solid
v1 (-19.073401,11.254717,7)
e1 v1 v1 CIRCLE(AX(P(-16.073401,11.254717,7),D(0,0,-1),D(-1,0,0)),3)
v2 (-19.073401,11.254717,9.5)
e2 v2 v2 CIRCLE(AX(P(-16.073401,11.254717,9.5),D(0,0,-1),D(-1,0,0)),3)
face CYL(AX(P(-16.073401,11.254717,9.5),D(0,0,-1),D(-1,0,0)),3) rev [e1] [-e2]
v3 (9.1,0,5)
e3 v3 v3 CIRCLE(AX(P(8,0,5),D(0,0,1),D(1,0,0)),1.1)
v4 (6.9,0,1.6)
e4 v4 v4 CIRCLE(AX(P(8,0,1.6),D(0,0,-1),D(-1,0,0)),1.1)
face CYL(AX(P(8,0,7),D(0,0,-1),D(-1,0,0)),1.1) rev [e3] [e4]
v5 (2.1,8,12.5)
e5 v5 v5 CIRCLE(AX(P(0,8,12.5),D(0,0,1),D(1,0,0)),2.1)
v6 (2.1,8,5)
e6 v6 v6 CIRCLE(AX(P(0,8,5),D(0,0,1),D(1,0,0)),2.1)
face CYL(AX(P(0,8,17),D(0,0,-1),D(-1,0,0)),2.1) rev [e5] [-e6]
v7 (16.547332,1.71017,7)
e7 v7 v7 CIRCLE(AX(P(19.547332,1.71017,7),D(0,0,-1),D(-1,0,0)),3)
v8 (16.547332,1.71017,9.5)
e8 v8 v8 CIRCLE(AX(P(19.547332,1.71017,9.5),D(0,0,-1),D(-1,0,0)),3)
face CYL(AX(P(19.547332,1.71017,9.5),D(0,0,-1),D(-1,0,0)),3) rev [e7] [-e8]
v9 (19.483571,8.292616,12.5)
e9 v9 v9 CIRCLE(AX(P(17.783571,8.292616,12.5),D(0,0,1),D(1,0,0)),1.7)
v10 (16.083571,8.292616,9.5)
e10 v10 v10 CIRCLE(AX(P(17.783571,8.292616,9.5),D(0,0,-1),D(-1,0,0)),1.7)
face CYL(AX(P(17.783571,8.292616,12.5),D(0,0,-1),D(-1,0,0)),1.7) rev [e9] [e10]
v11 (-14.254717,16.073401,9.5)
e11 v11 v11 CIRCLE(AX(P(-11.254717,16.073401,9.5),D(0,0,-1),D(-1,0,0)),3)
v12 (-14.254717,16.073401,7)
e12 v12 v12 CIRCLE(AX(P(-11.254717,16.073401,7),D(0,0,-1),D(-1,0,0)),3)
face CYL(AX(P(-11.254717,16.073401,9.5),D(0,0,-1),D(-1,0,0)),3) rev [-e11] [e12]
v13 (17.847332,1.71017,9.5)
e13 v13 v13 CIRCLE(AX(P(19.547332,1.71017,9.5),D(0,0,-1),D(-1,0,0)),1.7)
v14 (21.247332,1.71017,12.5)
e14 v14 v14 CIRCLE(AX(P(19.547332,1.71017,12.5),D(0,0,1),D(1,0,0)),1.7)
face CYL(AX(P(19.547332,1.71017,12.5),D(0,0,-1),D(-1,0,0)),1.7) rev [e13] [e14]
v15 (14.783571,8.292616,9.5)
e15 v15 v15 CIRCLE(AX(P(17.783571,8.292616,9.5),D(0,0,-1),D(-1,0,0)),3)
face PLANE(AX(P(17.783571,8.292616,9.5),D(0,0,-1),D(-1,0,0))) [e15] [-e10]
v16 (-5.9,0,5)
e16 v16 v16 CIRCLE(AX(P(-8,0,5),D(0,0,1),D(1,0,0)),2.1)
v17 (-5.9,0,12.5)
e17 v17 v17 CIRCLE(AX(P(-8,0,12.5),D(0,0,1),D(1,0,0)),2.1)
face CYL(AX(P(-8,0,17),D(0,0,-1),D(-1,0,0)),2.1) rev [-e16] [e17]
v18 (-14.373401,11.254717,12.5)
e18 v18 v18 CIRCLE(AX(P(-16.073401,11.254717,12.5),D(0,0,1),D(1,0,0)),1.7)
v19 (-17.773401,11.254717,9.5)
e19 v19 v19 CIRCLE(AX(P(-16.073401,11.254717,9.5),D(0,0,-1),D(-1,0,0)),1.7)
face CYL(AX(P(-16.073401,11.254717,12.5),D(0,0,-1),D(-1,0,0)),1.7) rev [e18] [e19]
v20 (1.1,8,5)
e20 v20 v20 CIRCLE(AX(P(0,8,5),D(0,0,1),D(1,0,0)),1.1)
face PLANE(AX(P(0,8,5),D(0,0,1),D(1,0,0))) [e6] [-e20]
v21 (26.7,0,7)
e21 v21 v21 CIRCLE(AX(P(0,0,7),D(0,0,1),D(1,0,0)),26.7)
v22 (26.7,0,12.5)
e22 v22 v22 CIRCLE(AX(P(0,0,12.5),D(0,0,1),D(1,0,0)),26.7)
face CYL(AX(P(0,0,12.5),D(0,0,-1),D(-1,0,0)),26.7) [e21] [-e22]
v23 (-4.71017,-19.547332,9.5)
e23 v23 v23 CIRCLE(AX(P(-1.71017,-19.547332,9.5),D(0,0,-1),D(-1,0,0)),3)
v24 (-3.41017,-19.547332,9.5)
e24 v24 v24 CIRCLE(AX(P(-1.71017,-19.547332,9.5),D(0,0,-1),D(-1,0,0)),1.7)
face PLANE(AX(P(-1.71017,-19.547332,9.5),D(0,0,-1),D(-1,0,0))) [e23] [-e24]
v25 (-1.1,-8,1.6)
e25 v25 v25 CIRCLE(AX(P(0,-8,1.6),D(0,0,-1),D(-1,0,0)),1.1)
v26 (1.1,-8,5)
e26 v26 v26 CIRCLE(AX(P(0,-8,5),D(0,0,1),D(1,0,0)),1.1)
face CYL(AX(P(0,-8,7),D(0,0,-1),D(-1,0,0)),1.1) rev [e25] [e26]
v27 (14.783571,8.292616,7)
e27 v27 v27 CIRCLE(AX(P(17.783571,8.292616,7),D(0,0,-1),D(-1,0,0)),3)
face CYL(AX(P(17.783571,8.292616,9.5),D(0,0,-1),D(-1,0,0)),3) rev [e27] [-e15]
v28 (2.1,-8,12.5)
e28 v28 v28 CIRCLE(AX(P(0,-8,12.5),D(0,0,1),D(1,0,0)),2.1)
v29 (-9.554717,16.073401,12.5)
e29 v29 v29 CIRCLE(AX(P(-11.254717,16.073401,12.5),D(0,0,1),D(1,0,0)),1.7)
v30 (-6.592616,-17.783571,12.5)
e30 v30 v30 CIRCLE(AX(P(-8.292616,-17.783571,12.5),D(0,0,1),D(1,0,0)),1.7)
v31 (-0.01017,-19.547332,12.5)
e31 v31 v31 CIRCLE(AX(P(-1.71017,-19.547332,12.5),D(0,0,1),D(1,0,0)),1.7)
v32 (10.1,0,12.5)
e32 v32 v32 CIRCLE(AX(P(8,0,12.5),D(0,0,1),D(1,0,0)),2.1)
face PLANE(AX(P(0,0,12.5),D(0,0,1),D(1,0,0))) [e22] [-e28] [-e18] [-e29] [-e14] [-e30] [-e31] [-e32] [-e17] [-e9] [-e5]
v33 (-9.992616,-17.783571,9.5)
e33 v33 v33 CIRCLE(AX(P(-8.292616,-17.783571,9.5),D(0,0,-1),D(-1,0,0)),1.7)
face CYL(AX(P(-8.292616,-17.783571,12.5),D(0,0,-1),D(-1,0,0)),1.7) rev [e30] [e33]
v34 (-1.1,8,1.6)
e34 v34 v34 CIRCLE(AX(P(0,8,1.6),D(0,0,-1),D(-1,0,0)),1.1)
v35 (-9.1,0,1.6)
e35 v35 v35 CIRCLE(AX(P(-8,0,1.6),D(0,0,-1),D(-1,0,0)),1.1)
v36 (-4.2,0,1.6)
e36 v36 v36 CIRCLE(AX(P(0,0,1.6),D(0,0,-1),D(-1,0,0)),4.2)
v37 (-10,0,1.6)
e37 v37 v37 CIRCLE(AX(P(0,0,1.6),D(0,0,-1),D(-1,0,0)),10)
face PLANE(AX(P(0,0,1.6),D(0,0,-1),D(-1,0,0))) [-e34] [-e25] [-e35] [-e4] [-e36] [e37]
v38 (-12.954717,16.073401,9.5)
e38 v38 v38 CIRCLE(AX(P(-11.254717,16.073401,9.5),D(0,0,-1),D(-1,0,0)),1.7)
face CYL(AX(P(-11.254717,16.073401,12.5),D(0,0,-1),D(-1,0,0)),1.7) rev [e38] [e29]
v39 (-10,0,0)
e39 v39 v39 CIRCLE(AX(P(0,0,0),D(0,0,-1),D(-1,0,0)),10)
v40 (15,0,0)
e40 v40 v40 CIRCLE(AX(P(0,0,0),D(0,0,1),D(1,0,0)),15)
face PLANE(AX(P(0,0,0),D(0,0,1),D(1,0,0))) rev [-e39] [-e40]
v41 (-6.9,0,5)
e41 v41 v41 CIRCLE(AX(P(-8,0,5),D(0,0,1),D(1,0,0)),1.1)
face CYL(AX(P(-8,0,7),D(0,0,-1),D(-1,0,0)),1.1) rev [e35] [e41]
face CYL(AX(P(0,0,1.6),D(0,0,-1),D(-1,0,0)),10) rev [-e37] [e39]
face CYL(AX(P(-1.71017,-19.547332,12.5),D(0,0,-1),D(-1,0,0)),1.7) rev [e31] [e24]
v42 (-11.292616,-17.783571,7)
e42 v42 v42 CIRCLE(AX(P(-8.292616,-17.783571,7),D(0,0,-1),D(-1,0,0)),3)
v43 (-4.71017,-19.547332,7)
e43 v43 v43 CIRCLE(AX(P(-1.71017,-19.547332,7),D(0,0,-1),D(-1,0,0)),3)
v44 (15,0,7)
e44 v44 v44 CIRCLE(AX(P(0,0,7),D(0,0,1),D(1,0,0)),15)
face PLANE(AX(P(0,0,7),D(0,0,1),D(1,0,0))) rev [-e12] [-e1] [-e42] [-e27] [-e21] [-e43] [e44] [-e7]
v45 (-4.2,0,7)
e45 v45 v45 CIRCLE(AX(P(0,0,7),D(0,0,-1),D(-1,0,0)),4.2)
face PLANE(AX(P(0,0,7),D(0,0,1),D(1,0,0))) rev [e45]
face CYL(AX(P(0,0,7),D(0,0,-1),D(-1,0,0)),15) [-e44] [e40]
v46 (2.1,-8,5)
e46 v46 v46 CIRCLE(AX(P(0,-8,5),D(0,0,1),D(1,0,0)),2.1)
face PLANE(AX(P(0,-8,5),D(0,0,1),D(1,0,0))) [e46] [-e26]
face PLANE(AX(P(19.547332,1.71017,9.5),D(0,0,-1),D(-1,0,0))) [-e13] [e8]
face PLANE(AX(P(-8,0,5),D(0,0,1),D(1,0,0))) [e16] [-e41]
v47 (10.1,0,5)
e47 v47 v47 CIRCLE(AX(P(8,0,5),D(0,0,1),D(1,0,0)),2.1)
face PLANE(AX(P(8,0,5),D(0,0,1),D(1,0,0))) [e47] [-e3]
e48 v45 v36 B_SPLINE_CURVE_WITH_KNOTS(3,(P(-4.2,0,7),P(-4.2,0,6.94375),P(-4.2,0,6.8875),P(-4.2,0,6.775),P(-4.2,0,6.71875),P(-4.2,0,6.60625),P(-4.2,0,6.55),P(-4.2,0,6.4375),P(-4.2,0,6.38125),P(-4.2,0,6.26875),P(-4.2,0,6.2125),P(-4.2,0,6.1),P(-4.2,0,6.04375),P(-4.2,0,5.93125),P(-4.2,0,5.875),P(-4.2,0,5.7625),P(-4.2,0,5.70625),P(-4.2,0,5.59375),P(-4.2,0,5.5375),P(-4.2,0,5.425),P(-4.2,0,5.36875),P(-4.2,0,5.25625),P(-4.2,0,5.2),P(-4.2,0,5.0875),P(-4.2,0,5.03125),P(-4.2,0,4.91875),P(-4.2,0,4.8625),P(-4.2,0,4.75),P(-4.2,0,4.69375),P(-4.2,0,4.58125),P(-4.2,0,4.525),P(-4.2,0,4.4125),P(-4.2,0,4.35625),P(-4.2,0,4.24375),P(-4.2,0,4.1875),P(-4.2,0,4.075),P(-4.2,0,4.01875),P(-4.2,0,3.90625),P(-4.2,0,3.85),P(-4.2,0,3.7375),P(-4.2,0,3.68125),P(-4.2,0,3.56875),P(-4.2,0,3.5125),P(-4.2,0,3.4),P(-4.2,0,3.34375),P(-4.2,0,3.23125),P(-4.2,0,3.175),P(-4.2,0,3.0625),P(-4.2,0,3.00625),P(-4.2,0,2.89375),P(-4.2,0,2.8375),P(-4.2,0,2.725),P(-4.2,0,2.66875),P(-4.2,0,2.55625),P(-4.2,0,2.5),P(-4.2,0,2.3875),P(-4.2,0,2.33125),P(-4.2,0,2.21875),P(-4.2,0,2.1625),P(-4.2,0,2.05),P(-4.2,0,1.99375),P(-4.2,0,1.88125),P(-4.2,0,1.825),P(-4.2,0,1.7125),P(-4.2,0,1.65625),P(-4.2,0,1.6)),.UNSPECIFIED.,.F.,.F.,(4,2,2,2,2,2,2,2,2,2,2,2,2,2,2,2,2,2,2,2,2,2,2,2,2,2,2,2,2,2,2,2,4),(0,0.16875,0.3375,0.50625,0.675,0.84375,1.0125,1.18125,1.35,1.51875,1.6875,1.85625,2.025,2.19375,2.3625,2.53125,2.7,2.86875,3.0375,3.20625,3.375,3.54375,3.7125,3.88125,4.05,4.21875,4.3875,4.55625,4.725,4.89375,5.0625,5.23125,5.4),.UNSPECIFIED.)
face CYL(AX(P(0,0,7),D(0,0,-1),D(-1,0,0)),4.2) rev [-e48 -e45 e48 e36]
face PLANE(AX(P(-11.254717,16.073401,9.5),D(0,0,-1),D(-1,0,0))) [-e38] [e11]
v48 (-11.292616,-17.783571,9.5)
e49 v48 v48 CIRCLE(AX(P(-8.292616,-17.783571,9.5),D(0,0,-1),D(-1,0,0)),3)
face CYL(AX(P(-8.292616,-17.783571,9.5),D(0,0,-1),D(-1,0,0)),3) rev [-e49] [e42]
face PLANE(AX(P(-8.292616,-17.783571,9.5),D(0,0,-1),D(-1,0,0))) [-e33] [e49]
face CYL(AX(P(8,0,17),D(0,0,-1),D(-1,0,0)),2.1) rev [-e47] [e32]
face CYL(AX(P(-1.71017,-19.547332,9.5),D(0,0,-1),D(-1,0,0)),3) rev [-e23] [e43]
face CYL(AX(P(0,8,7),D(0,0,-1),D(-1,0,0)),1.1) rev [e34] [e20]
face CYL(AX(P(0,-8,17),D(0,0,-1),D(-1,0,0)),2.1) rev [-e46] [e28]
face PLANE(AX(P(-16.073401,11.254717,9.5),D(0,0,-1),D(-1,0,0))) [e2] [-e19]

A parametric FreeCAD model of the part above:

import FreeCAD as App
import Part
import Sketcher
from FreeCAD import Vector

doc = App.newDocument("Part")
body = doc.addObject("PartDesign::Body", "Body")

# Sketch on XY plane
sketch1 = body.newObject("Sketcher::SketchObject", "Sketch")
sketch1.AttachmentSupport = (doc.getObject("XY_Plane"), [""])
sketch1.MapMode = "FlatFace"
sketch1.addGeometry(Part.Circle(Vector(0, 0, 0), Vector(0, 0, 1), 15), False)
sketch1.addGeometry(Part.Circle(Vector(-8, 0, 0), Vector(0, 0, 1), 1.1), False)
sketch1.addGeometry(Part.Circle(Vector(0, -8, 0), Vector(0, 0, 1), 1.1), False)
sketch1.addGeometry(Part.Circle(Vector(0, 0, 0), Vector(0, 0, 1), 2.3), False)
sketch1.addGeometry(Part.Circle(Vector(8, 0, 0), Vector(0, 0, 1), 1.1), False)
sketch1.addGeometry(Part.Circle(Vector(0, 8, 0), Vector(0, 0, 1), 1.1), False)
sketch1.addConstraint(Sketcher.Constraint("Coincident", 0, 3, -1, 1))
sketch1.addConstraint(Sketcher.Constraint("Coincident", 3, 3, -1, 1))
sketch1.addConstraint(Sketcher.Constraint("Equal", 1, 2))
sketch1.addConstraint(Sketcher.Constraint("Equal", 2, 4))
sketch1.addConstraint(Sketcher.Constraint("Equal", 4, 5))
sketch1.addConstraint(Sketcher.Constraint("Symmetric", 1, 3, 4, 3, -1, 1))
sketch1.addConstraint(Sketcher.Constraint("Symmetric", 2, 3, 5, 3, -1, 1))
sketch1.addConstraint(Sketcher.Constraint("PointOnObject", 1, 3, -1))
sketch1.addConstraint(Sketcher.Constraint("PointOnObject", 2, 3, -2))
sketch1.addConstraint(Sketcher.Constraint("Diameter", 0, 30.0))
sketch1.addConstraint(Sketcher.Constraint("Diameter", 1, 2.2))
sketch1.addConstraint(Sketcher.Constraint("Diameter", 3, 4.6))
sketch1.addConstraint(Sketcher.Constraint("DistanceX", 1, 3, -1, 1, 8.0))
sketch1.addConstraint(Sketcher.Constraint("DistanceY", 2, 3, -1, 1, 8.0))
pad1 = body.newObject("PartDesign::Pad", "Pad")
pad1.Profile = sketch1
pad1.Length = 7

# Sketch on XY plane
sketch2 = body.newObject("Sketcher::SketchObject", "Sketch001")
sketch2.AttachmentSupport = (doc.getObject("XY_Plane"), [""])
sketch2.MapMode = "FlatFace"
sketch2.AttachmentOffset = App.Placement(Vector(0, 0, 7), App.Rotation())
sketch2.addGeometry(Part.Circle(Vector(0, 8, 0), Vector(0, 0, 1), 2.1), False)
sketch2.addGeometry(Part.Circle(Vector(8, 0, 0), Vector(0, 0, 1), 2.1), False)
sketch2.addGeometry(Part.Circle(Vector(0, -8, 0), Vector(0, 0, 1), 2.1), False)
sketch2.addGeometry(Part.Circle(Vector(-8, 0, 0), Vector(0, 0, 1), 2.1), False)
sketch2.addConstraint(Sketcher.Constraint("Equal", 0, 1))
sketch2.addConstraint(Sketcher.Constraint("Equal", 1, 2))
sketch2.addConstraint(Sketcher.Constraint("Equal", 2, 3))
sketch2.addConstraint(Sketcher.Constraint("Symmetric", 0, 3, 2, 3, -1, 1))
sketch2.addConstraint(Sketcher.Constraint("Symmetric", 1, 3, 3, 3, -1, 1))
sketch2.addConstraint(Sketcher.Constraint("PointOnObject", 0, 3, -2))
sketch2.addConstraint(Sketcher.Constraint("PointOnObject", 1, 3, -1))
sketch2.addConstraint(Sketcher.Constraint("Diameter", 0, 4.2))
sketch2.addConstraint(Sketcher.Constraint("DistanceY", -1, 1, 0, 3, 8.0))
sketch2.addConstraint(Sketcher.Constraint("DistanceX", -1, 1, 1, 3, 8.0))
pocket1 = body.newObject("PartDesign::Pocket", "Pocket")
pocket1.Profile = sketch2
pocket1.Type = "TwoLengths"
pocket1.Length = 10
pocket1.Length2 = 2
pocket1.Reversed = True

# Sketch on XY plane
sketch3 = body.newObject("Sketcher::SketchObject", "Sketch002")
sketch3.AttachmentSupport = (doc.getObject("XY_Plane"), [""])
sketch3.MapMode = "FlatFace"
sketch3.addGeometry(Part.Circle(Vector(0, 0, 0), Vector(0, 0, 1), 10), False)
sketch3.addConstraint(Sketcher.Constraint("Coincident", 0, 3, -1, 1))
sketch3.addConstraint(Sketcher.Constraint("Diameter", 0, 20.0))
pocket2 = body.newObject("PartDesign::Pocket", "Pocket001")
pocket2.Profile = sketch3
pocket2.Length = 1.6
pocket2.Reversed = True

# Sketch on XY plane
sketch4 = body.newObject("Sketcher::SketchObject", "Sketch003")
sketch4.AttachmentSupport = (doc.getObject("XY_Plane"), [""])
sketch4.MapMode = "FlatFace"
sketch4.AttachmentOffset = App.Placement(Vector(0, 0, 1.6), App.Rotation())
sketch4.addGeometry(Part.Circle(Vector(0, 0, 0), Vector(0, 0, 1), 4.2), False)
sketch4.addConstraint(Sketcher.Constraint("Coincident", 0, 3, -1, 1))
sketch4.addConstraint(Sketcher.Constraint("Diameter", 0, 8.4))
pocket3 = body.newObject("PartDesign::Pocket", "Pocket002")
pocket3.Profile = sketch4
pocket3.Type = "ThroughAll"
pocket3.Reversed = True

# Sketch on XY plane
sketch5 = body.newObject("Sketcher::SketchObject", "Sketch004")
sketch5.AttachmentSupport = (doc.getObject("XY_Plane"), [""])
sketch5.MapMode = "FlatFace"
sketch5.AttachmentOffset = App.Placement(Vector(0, 0, 7), App.Rotation())
sketch5.addGeometry(Part.Circle(Vector(0, 0, 0), Vector(0, 0, 1), 26.7), False)
sketch5.addGeometry(Part.Circle(Vector(-8.3, -17.8, 0), Vector(0, 0, 1), 1.7), False)
sketch5.addGeometry(Part.Circle(Vector(-1.7, -19.5, 0), Vector(0, 0, 1), 1.7), False)
sketch5.addGeometry(Part.Circle(Vector(-16.1, 11.3, 0), Vector(0, 0, 1), 1.7), False)
sketch5.addGeometry(Part.Circle(Vector(-11.3, 16.1, 0), Vector(0, 0, 1), 1.7), False)
sketch5.addGeometry(Part.Circle(Vector(19.5, 1.7, 0), Vector(0, 0, 1), 1.7), False)
sketch5.addGeometry(Part.Circle(Vector(17.8, 8.3, 0), Vector(0, 0, 1), 1.7), False)
sketch5.addConstraint(Sketcher.Constraint("Coincident", 0, 3, -1, 1))
sketch5.addConstraint(Sketcher.Constraint("Equal", 1, 2))
sketch5.addConstraint(Sketcher.Constraint("Equal", 2, 3))
sketch5.addConstraint(Sketcher.Constraint("Equal", 3, 4))
sketch5.addConstraint(Sketcher.Constraint("Equal", 4, 5))
sketch5.addConstraint(Sketcher.Constraint("Equal", 5, 6))
sketch5.addConstraint(Sketcher.Constraint("Diameter", 0, 53.4))
sketch5.addConstraint(Sketcher.Constraint("Diameter", 1, 3.4))
sketch5.addConstraint(Sketcher.Constraint("DistanceX", 3, 3, -1, 1, 16.073401))
sketch5.addConstraint(Sketcher.Constraint("DistanceY", -1, 1, 4, 3, 16.073401))
sketch5.addConstraint(Sketcher.Constraint("DistanceX", 4, 3, 1, 3, 2.962101))
sketch5.addConstraint(Sketcher.Constraint("DistanceY", 6, 3, 3, 3, 2.962101))
sketch5.addConstraint(Sketcher.Constraint("DistanceY", 1, 3, -1, 1, 17.783571))
sketch5.addConstraint(Sketcher.Constraint("DistanceX", 2, 3, -1, 1, 1.71017))
sketch5.addConstraint(Sketcher.Constraint("DistanceY", -1, 1, 5, 3, 1.71017))
sketch5.addConstraint(Sketcher.Constraint("DistanceX", -1, 1, 6, 3, 17.783571))
sketch5.addConstraint(Sketcher.Constraint("DistanceY", 2, 3, 1, 3, 1.763761))
sketch5.addConstraint(Sketcher.Constraint("DistanceY", 1, 3, 3, 3, 29.038288))
sketch5.addConstraint(Sketcher.Constraint("DistanceX", 4, 3, 5, 3, 30.802049))
sketch5.addConstraint(Sketcher.Constraint("DistanceX", 6, 3, 5, 3, 1.763761))
pad2 = body.newObject("PartDesign::Pad", "Pad001")
pad2.Profile = sketch5
pad2.Length = 5.5

# Sketch on XY plane
sketch6 = body.newObject("Sketcher::SketchObject", "Sketch005")
sketch6.AttachmentSupport = (doc.getObject("XY_Plane"), [""])
sketch6.MapMode = "FlatFace"
sketch6.AttachmentOffset = App.Placement(Vector(0, 0, 7), App.Rotation())
sketch6.addGeometry(Part.Circle(Vector(17.8, 8.3, 0), Vector(0, 0, 1), 3), False)
sketch6.addGeometry(Part.Circle(Vector(19.5, 1.7, 0), Vector(0, 0, 1), 3), False)
sketch6.addGeometry(Part.Circle(Vector(-11.3, 16.1, 0), Vector(0, 0, 1), 3), False)
sketch6.addGeometry(Part.Circle(Vector(-16.1, 11.3, 0), Vector(0, 0, 1), 3), False)
sketch6.addGeometry(Part.Circle(Vector(-1.7, -19.5, 0), Vector(0, 0, 1), 3), False)
sketch6.addGeometry(Part.Circle(Vector(-8.3, -17.8, 0), Vector(0, 0, 1), 3), False)
sketch6.addConstraint(Sketcher.Constraint("Equal", 0, 1))
sketch6.addConstraint(Sketcher.Constraint("Equal", 1, 2))
sketch6.addConstraint(Sketcher.Constraint("Equal", 2, 3))
sketch6.addConstraint(Sketcher.Constraint("Equal", 3, 4))
sketch6.addConstraint(Sketcher.Constraint("Equal", 4, 5))
sketch6.addConstraint(Sketcher.Constraint("Diameter", 0, 6.0))
sketch6.addConstraint(Sketcher.Constraint("DistanceY", -1, 1, 2, 3, 16.073401))
sketch6.addConstraint(Sketcher.Constraint("DistanceX", 3, 3, -1, 1, 16.073401))
sketch6.addConstraint(Sketcher.Constraint("DistanceY", 0, 3, 3, 3, 2.962101))
sketch6.addConstraint(Sketcher.Constraint("DistanceX", 2, 3, 5, 3, 2.962101))
sketch6.addConstraint(Sketcher.Constraint("DistanceX", -1, 1, 0, 3, 17.783571))
sketch6.addConstraint(Sketcher.Constraint("DistanceY", -1, 1, 1, 3, 1.71017))
sketch6.addConstraint(Sketcher.Constraint("DistanceX", 4, 3, -1, 1, 1.71017))
sketch6.addConstraint(Sketcher.Constraint("DistanceY", 5, 3, -1, 1, 17.783571))
sketch6.addConstraint(Sketcher.Constraint("DistanceX", 0, 3, 1, 3, 1.763761))
sketch6.addConstraint(Sketcher.Constraint("DistanceX", 2, 3, 0, 3, 29.038288))
sketch6.addConstraint(Sketcher.Constraint("DistanceY", 4, 3, 3, 3, 30.802049))
sketch6.addConstraint(Sketcher.Constraint("DistanceY", 4, 3, 5, 3, 1.763761))
pocket4 = body.newObject("PartDesign::Pocket", "Pocket003")
pocket4.Profile = sketch6
pocket4.Length = 2.5
pocket4.Reversed = True

# Sketch on XY plane
sketch7 = body.newObject("Sketcher::SketchObject", "Sketch006")
sketch7.AttachmentSupport = (doc.getObject("XY_Plane"), [""])
sketch7.MapMode = "FlatFace"
sketch7.AttachmentOffset = App.Placement(Vector(0, 0, 15), App.Rotation())
sketch7.addGeometry(Part.Circle(Vector(-8, 0, 0), Vector(0, 0, 1), 2.1), False)
sketch7.addGeometry(Part.Circle(Vector(0, -8, 0), Vector(0, 0, 1), 2.1), False)
sketch7.addGeometry(Part.Circle(Vector(8, 0, 0), Vector(0, 0, 1), 2.1), False)
sketch7.addGeometry(Part.Circle(Vector(0, 8, 0), Vector(0, 0, 1), 2.1), False)
sketch7.addConstraint(Sketcher.Constraint("Equal", 0, 1))
sketch7.addConstraint(Sketcher.Constraint("Equal", 1, 2))
sketch7.addConstraint(Sketcher.Constraint("Equal", 2, 3))
sketch7.addConstraint(Sketcher.Constraint("Symmetric", 0, 3, 2, 3, -1, 1))
sketch7.addConstraint(Sketcher.Constraint("Symmetric", 1, 3, 3, 3, -1, 1))
sketch7.addConstraint(Sketcher.Constraint("PointOnObject", 0, 3, -1))
sketch7.addConstraint(Sketcher.Constraint("PointOnObject", 1, 3, -2))
sketch7.addConstraint(Sketcher.Constraint("Diameter", 0, 4.2))
sketch7.addConstraint(Sketcher.Constraint("DistanceX", 0, 3, -1, 1, 8.0))
sketch7.addConstraint(Sketcher.Constraint("DistanceY", 1, 3, -1, 1, 8.0))
pocket5 = body.newObject("PartDesign::Pocket", "Pocket004")
pocket5.Profile = sketch7
pocket5.Length = 8

doc.recompute()
